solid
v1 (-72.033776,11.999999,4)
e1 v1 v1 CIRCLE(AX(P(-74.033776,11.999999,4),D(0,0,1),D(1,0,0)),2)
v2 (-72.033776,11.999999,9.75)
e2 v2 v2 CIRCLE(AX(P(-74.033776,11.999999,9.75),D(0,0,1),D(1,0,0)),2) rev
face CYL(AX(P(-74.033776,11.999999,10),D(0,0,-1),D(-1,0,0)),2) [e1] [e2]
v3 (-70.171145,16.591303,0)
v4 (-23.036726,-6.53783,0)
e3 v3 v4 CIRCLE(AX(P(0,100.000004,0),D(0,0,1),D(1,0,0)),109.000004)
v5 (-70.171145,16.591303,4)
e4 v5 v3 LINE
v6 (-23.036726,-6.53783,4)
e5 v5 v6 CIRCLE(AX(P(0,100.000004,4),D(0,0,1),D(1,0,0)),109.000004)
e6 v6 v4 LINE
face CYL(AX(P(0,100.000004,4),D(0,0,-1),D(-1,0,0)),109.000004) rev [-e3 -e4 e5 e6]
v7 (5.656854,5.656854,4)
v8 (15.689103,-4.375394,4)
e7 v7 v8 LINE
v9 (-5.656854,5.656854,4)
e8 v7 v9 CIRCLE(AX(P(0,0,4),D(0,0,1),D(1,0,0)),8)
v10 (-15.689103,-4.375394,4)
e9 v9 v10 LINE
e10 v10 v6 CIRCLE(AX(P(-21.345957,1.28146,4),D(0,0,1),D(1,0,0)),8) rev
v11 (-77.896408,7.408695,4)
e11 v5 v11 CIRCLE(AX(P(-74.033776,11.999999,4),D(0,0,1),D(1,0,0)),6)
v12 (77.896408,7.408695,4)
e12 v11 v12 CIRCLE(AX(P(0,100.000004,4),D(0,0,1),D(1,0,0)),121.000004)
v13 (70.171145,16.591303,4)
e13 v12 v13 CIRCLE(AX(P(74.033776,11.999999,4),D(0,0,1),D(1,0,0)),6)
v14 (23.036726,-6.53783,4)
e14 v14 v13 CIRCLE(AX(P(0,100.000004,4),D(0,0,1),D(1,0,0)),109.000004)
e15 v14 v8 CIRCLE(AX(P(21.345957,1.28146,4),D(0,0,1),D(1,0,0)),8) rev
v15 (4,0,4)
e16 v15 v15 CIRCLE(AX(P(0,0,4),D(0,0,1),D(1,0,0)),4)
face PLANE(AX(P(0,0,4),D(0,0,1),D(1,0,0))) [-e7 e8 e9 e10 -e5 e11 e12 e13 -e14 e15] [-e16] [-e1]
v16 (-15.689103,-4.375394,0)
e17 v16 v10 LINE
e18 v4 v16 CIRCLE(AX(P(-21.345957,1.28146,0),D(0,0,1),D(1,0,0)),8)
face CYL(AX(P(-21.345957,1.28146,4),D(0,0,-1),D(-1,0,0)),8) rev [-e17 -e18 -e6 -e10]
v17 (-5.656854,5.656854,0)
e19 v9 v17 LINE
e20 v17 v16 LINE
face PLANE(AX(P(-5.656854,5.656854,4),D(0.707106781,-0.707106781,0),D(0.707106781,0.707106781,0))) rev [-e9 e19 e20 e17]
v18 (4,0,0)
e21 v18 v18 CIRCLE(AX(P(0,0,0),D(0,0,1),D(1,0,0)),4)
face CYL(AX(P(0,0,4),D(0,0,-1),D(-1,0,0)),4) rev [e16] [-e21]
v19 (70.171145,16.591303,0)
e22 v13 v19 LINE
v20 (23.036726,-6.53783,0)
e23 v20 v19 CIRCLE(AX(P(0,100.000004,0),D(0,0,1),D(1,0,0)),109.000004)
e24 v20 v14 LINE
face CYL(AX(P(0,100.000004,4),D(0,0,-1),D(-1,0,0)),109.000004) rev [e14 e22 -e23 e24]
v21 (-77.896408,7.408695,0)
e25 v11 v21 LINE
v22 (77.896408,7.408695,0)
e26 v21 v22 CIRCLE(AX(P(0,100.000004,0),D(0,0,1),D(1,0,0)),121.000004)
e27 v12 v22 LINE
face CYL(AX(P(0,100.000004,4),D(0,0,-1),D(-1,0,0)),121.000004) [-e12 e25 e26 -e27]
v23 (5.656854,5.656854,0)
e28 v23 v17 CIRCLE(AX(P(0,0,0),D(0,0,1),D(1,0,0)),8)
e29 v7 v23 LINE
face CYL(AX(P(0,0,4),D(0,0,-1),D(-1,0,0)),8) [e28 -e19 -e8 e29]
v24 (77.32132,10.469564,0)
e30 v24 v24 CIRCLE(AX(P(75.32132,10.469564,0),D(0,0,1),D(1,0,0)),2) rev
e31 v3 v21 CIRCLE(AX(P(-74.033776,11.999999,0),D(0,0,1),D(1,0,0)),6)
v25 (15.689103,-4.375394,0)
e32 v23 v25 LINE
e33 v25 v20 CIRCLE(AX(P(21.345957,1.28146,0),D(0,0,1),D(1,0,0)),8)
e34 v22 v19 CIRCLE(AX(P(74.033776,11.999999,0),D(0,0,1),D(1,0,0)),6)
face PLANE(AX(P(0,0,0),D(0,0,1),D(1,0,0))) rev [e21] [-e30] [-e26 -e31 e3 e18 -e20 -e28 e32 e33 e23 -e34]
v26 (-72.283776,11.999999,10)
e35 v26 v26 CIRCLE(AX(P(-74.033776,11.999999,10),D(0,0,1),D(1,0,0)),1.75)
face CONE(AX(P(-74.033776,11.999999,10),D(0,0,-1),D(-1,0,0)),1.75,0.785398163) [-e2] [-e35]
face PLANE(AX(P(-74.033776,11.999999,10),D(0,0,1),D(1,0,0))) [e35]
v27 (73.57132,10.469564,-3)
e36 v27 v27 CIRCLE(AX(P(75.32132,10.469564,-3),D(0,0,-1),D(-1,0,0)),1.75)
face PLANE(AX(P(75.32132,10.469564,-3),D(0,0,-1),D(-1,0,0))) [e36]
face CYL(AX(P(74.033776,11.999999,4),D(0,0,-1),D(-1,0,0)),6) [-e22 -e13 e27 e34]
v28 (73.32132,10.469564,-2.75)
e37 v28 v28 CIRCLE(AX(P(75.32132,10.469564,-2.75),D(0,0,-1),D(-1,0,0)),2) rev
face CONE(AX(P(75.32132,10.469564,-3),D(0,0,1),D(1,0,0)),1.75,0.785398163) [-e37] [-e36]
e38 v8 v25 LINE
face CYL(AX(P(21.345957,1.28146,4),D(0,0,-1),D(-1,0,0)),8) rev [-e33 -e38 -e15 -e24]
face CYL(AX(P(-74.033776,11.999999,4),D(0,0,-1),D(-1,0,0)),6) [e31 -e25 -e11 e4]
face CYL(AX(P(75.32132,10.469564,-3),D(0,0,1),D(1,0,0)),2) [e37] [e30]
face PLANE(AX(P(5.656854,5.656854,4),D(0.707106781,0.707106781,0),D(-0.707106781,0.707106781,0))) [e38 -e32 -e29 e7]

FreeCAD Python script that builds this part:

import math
import FreeCAD as App
import Part
import Sketcher


def edges_at(feature, points):
    """Names of the edges that pass closest to the given points."""
    edges = feature.Shape.Edges
    near = lambda p: min(range(len(edges)), key=lambda i: edges[i].distToShape(Part.Vertex(*p))[0])
    return sorted({f"Edge{near(p) + 1}" for p in points})

doc = App.newDocument("Part")
params = doc.addObject("Spreadsheet::Sheet", "Params")
for row, (alias, value) in enumerate([
    ("sketch1_diameter", "8 mm"),
    ("sketch1_radius", "8 mm"),
    ("sketch1_radius2", "6 mm"),
    ("pad1_length", "4 mm"),
    ("sketch2_diameter", "4 mm"),
    ("pad2_length", "6 mm"),
    ("chamfer_size", "0.25 mm"),
    ("sketch3_diameter", "4 mm"),
    ("pad3_length", "3 mm"),
    ("chamfer2_size", "0.25 mm"),
    ("fillet_radius", "8 mm"),
], start=1):
    params.set(f"A{row}", alias)
    params.set(f"B{row}", "=" + value)
    params.setAlias(f"B{row}", alias)

body = doc.addObject("PartDesign::Body", "Body")

sketch1 = doc.addObject("Sketcher::SketchObject", "Sketch")
body.addObject(sketch1)
sketch1.AttachmentSupport = (doc.XY_Plane, [""])
sketch1.MapMode = "FlatFace"
sketch1.addGeometry([
    Part.ArcOfCircle(Part.Circle(App.Vector(0, 0, 0), App.Vector(0, 0, 1), 8), math.radians(45), math.radians(135)),
    Part.LineSegment(App.Vector(-5.7, 5.7, 0), App.Vector(-18.7, -7.4, 0)),
    Part.ArcOfCircle(Part.Circle(App.Vector(0, 100, 0), App.Vector(0, 0, 1), 109), math.radians(-130), math.radians(-100)),
    Part.ArcOfCircle(Part.Circle(App.Vector(-74, 12, 0), App.Vector(0, 0, 1), 6), math.radians(50), math.radians(230)),
    Part.ArcOfCircle(Part.Circle(App.Vector(0, 100, 0), App.Vector(0, 0, 1), 121), math.radians(-130), math.radians(-50)),
    Part.ArcOfCircle(Part.Circle(App.Vector(74, 12, 0), App.Vector(0, 0, 1), 6), math.radians(-50), math.radians(130)),
    Part.ArcOfCircle(Part.Circle(App.Vector(0, 100, 0), App.Vector(0, 0, 1), 109), math.radians(-80), math.radians(-50)),
    Part.LineSegment(App.Vector(18.7, -7.4, 0), App.Vector(5.7, 5.7, 0)),
    Part.Circle(App.Vector(0, 0, 0), App.Vector(0, 0, 1), 4),
], False)
sketch1.addConstraint([
    Sketcher.Constraint("Tangent", 0, 2, 1, 1),
    Sketcher.Constraint("Coincident", 1, 2, 2, 2),
    Sketcher.Constraint("Tangent", 2, 1, 3, 1),
    Sketcher.Constraint("Tangent", 3, 2, 4, 1),
    Sketcher.Constraint("Tangent", 4, 2, 5, 1),
    Sketcher.Constraint("Tangent", 5, 2, 6, 2),
    Sketcher.Constraint("Coincident", 6, 1, 7, 1),
    Sketcher.Constraint("Tangent", 7, 2, 0, 1),
    Sketcher.Constraint("Coincident", 0, 3, -1, 1),
    Sketcher.Constraint("Coincident", 8, 3, -1, 1),
    Sketcher.Constraint("Coincident", 4, 3, 2, 3),
    Sketcher.Constraint("Coincident", 6, 3, 2, 3),
    Sketcher.Constraint("Equal", 3, 5),
    Sketcher.Constraint("Symmetric", 3, 3, 5, 3, -2),
    Sketcher.Constraint("Perpendicular", 1, 7),
    Sketcher.Constraint("Horizontal", 1, 2, 6, 1),
    Sketcher.Constraint("Diameter", 8, 8.0),
    Sketcher.Constraint("Radius", 0, 8.0),
    Sketcher.Constraint("Radius", 3, 6.0),
    Sketcher.Constraint("DistanceY", -1, 1, 3, 3, 11.999999),
    Sketcher.Constraint("Radius", 2, 109.000004),
    Sketcher.Constraint("DistanceX", 0, 2, 5, 2, 75.827999),
])
sketch1.setExpression("Constraints[16]", "Params.sketch1_diameter")
sketch1.setExpression("Constraints[17]", "Params.sketch1_radius")
sketch1.setExpression("Constraints[18]", "Params.sketch1_radius2")
pad1 = doc.addObject("PartDesign::Pad", "Pad")
body.addObject(pad1)
pad1.Profile = sketch1
pad1.setExpression("Length", "Params.pad1_length")

sketch2 = doc.addObject("Sketcher::SketchObject", "Sketch001")
body.addObject(sketch2)
sketch2.AttachmentSupport = (doc.XY_Plane, [""])
sketch2.MapMode = "FlatFace"
sketch2.AttachmentOffset = App.Placement(App.Vector(0, 0, 4), App.Rotation())
sketch2.addGeometry(Part.Circle(App.Vector(-74, 12, 0), App.Vector(0, 0, 1), 2), False)
sketch2.addConstraint([
    Sketcher.Constraint("Diameter", 0, 4.0),
    Sketcher.Constraint("DistanceY", -1, 1, 0, 3, 11.999999),
    Sketcher.Constraint("DistanceX", 0, 3, -1, 1, 74.033776),
])
sketch2.setExpression("Constraints[0]", "Params.sketch2_diameter")
pad2 = doc.addObject("PartDesign::Pad", "Pad001")
body.addObject(pad2)
pad2.Profile = sketch2
pad2.setExpression("Length", "Params.pad2_length")
doc.recompute()

chamfer = doc.addObject("PartDesign::Chamfer", "Chamfer")
body.addObject(chamfer)
chamfer.Base = (pad2, edges_at(pad2, [(-76.034, 12, 10)]))
chamfer.setExpression("Size", "Params.chamfer_size")

sketch3 = doc.addObject("Sketcher::SketchObject", "Sketch002")
body.addObject(sketch3)
sketch3.AttachmentSupport = (doc.XY_Plane, [""])
sketch3.MapMode = "FlatFace"
sketch3.addGeometry(Part.Circle(App.Vector(75.3, 10.5, 0), App.Vector(0, 0, 1), 2), False)
sketch3.addConstraint([
    Sketcher.Constraint("Diameter", 0, 4.0),
    Sketcher.Constraint("DistanceX", -1, 1, 0, 3, 75.32132),
    Sketcher.Constraint("DistanceY", -1, 1, 0, 3, 10.469564),
])
sketch3.setExpression("Constraints[0]", "Params.sketch3_diameter")
pad3 = doc.addObject("PartDesign::Pad", "Pad002")
body.addObject(pad3)
pad3.Profile = sketch3
pad3.setExpression("Length", "Params.pad3_length")
pad3.Reversed = True
doc.recompute()

chamfer2 = doc.addObject("PartDesign::Chamfer", "Chamfer001")
body.addObject(chamfer2)
chamfer2.Base = (pad3, edges_at(pad3, [(77.321, 10.47, -3)]))
chamfer2.setExpression("Size", "Params.chamfer2_size")
doc.recompute()

fillet = doc.addObject("PartDesign::Fillet", "Fillet")
body.addObject(fillet)
fillet.Base = (chamfer2, edges_at(chamfer2, [(18.698, -7.384, 2), (-18.698, -7.384, 2)]))
fillet.setExpression("Radius", "Params.fillet_radius")

doc.recompute()
